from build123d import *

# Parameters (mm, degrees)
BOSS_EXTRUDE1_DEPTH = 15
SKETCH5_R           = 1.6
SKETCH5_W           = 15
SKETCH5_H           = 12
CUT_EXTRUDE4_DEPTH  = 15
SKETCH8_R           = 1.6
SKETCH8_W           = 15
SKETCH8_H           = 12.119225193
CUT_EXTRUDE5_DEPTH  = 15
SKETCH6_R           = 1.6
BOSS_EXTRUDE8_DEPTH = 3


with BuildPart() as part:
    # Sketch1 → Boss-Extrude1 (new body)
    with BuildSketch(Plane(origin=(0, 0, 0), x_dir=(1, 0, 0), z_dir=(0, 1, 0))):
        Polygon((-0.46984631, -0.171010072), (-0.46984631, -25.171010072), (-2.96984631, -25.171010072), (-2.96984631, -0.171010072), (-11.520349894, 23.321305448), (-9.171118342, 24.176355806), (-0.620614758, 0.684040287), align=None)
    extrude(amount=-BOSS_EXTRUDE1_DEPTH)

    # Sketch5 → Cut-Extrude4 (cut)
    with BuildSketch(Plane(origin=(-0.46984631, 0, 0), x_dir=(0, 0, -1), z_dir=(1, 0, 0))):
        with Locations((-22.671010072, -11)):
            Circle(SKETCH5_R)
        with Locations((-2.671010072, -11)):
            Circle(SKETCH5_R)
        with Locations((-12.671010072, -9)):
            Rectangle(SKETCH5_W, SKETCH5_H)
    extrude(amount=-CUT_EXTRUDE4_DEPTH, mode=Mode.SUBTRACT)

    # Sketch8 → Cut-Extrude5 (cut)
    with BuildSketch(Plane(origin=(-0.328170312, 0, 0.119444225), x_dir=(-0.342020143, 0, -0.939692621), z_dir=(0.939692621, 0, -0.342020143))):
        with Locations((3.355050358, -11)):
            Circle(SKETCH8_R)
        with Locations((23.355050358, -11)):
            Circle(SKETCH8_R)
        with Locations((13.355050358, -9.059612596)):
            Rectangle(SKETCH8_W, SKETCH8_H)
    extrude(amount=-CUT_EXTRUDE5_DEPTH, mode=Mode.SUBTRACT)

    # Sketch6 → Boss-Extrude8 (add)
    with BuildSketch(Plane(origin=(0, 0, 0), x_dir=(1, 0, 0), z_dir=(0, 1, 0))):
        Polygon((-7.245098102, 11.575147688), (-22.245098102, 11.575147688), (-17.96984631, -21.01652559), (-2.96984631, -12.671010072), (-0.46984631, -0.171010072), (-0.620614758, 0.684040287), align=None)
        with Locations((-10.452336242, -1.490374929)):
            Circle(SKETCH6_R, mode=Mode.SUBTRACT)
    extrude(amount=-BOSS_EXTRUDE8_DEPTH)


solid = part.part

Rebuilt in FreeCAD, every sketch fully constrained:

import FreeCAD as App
import Part
import Sketcher
Q = App.Units.Quantity


def add_polygon(sketch, points):
    """Adds a closed chain of lines whose ends are joined by coincident constraints."""
    first, n = sketch.GeometryCount, len(points)
    for a, b in zip(points, points[1:] + points[:1]):
        sketch.addGeometry(Part.LineSegment(App.Vector(*a, 0), App.Vector(*b, 0)), False)
    for i in range(n):
        sketch.addConstraint(Sketcher.Constraint("Coincident", first + i, 2, first + (i + 1) % n, 1))

doc = App.newDocument("Part")
body = doc.addObject("PartDesign::Body", "Body")

# Sketch on XZ plane
sketch1 = body.newObject("Sketcher::SketchObject", "Sketch")
sketch1.AttachmentSupport = (doc.getObject("XZ_Plane"), [""])
sketch1.MapMode = "FlatFace"
add_polygon(sketch1, [(-0.5, 25.2), (-0.5, 0.2), (-0.6, -0.7), (-9.2, -24.2), (-11.5, -23.3), (-3, 0.2), (-3, 25.2)])  # lines 0-6
sketch1.addConstraint(Sketcher.Constraint("Vertical", 0))
sketch1.addConstraint(Sketcher.Constraint("Vertical", 5))
sketch1.addConstraint(Sketcher.Constraint("Horizontal", 6))
sketch1.addConstraint(Sketcher.Constraint("Perpendicular", 2, 3))
sketch1.addConstraint(Sketcher.Constraint("Perpendicular", 3, 4))
sketch1.addConstraint(Sketcher.Constraint("Horizontal", 0, 2, 4, 2))
sketch1.addConstraint(Sketcher.Constraint("Equal", 2, 4))
sketch1.addConstraint(Sketcher.Constraint("DistanceY", 0, 2, 0, 1, 25.0))
sketch1.addConstraint(Sketcher.Constraint("Angle", 1, Q("-100 deg")))
sketch1.addConstraint(Sketcher.Constraint("Angle", 2, Q("-110 deg")))
sketch1.addConstraint(Sketcher.Constraint("Distance", 2, 25.0))
sketch1.addConstraint(Sketcher.Constraint("DistanceX", 6, 1, 6, 2, 2.5))
sketch1.addConstraint(Sketcher.Constraint("DistanceY", -1, 1, 0, 2, 0.17101))
sketch1.addConstraint(Sketcher.Constraint("DistanceX", 2, 2, -1, 1, 9.171118))
pad1 = body.newObject("PartDesign::Pad", "Pad")
pad1.Profile = sketch1
pad1.Length = 15

# Sketch on YZ plane
sketch2 = body.newObject("Sketcher::SketchObject", "Sketch001")
sketch2.AttachmentSupport = (doc.getObject("YZ_Plane"), [""])
sketch2.MapMode = "FlatFace"
sketch2.AttachmentOffset = App.Placement(App.Vector(0, 0, -0.469846), App.Rotation())
sketch2.addGeometry(Part.Circle(App.Vector(-11, 22.7, 0), App.Vector(0, 0, 1), 1.6), False)  # 0
sketch2.addGeometry(Part.Circle(App.Vector(-11, 2.7, 0), App.Vector(0, 0, 1), 1.6), False)  # 1
add_polygon(sketch2, [(-3, 20.2), (-15, 20.2), (-15, 5.2), (-3, 5.2)])  # lines 2-5
sketch2.addConstraint(Sketcher.Constraint("Horizontal", 2))
sketch2.addConstraint(Sketcher.Constraint("Vertical", 3))
sketch2.addConstraint(Sketcher.Constraint("Horizontal", 4))
sketch2.addConstraint(Sketcher.Constraint("Vertical", 5))
sketch2.addConstraint(Sketcher.Constraint("Equal", 0, 1))
sketch2.addConstraint(Sketcher.Constraint("Vertical", 0, 3, 1, 3))
sketch2.addConstraint(Sketcher.Constraint("Diameter", 0, 3.2))
sketch2.addConstraint(Sketcher.Constraint("DistanceX", 2, 2, 2, 1, 12.0))
sketch2.addConstraint(Sketcher.Constraint("DistanceY", 3, 2, 3, 1, 15.0))
sketch2.addConstraint(Sketcher.Constraint("DistanceX", 0, 3, -1, 1, 11.0))
sketch2.addConstraint(Sketcher.Constraint("DistanceX", 2, 2, -1, 1, 15.0))
sketch2.addConstraint(Sketcher.Constraint("DistanceY", 1, 3, 0, 3, 20.0))
sketch2.addConstraint(Sketcher.Constraint("DistanceY", 2, 2, 0, 3, 2.5))
sketch2.addConstraint(Sketcher.Constraint("DistanceY", -1, 1, 0, 3, 22.67101))
pocket1 = body.newObject("PartDesign::Pocket", "Pocket")
pocket1.Profile = sketch2
pocket1.Length = 15

# Sketch on an angled plane
sketch3 = body.newObject("Sketcher::SketchObject", "Sketch002")
sketch3.Placement = App.Placement(App.Vector(-0.32817, 0, 0.119444), App.Rotation(App.Vector(-0.342020143, 0, -0.939692621), App.Vector(0, 1, 0), App.Vector(0.939692621, 0, -0.342020143), "ZXY"))
sketch3.addGeometry(Part.Circle(App.Vector(3.4, -11, 0), App.Vector(0, 0, 1), 1.6), False)  # 0
sketch3.addGeometry(Part.Circle(App.Vector(23.4, -11, 0), App.Vector(0, 0, 1), 1.6), False)  # 1
add_polygon(sketch3, [(5.9, -3), (5.9, -15.1), (20.9, -15.1), (20.9, -3)])  # lines 2-5
sketch3.addConstraint(Sketcher.Constraint("Vertical", 2))
sketch3.addConstraint(Sketcher.Constraint("Horizontal", 3))
sketch3.addConstraint(Sketcher.Constraint("Vertical", 4))
sketch3.addConstraint(Sketcher.Constraint("Horizontal", 5))
sketch3.addConstraint(Sketcher.Constraint("Equal", 0, 1))
sketch3.addConstraint(Sketcher.Constraint("Horizontal", 0, 3, 1, 3))
sketch3.addConstraint(Sketcher.Constraint("Diameter", 0, 3.2))
sketch3.addConstraint(Sketcher.Constraint("DistanceX", 3, 1, 3, 2, 15.0))
sketch3.addConstraint(Sketcher.Constraint("DistanceY", 0, 3, -1, 1, 11.0))
sketch3.addConstraint(Sketcher.Constraint("DistanceY", 4, 2, -1, 1, 3.0))
sketch3.addConstraint(Sketcher.Constraint("DistanceX", 0, 3, 1, 3, 20.0))
sketch3.addConstraint(Sketcher.Constraint("DistanceX", 0, 3, 2, 2, 2.5))
sketch3.addConstraint(Sketcher.Constraint("DistanceY", 2, 2, 2, 1, 12.119225))
sketch3.addConstraint(Sketcher.Constraint("DistanceX", -1, 1, 0, 3, 3.35505))
pocket2 = body.newObject("PartDesign::Pocket", "Pocket001")
pocket2.Profile = sketch3
pocket2.Length = 15

# Sketch on XZ plane
sketch4 = body.newObject("Sketcher::SketchObject", "Sketch003")
sketch4.AttachmentSupport = (doc.getObject("XZ_Plane"), [""])
sketch4.MapMode = "FlatFace"
add_polygon(sketch4, [(-7.2, -11.6), (-22.2, -11.6), (-18, 21), (-3, 12.7), (-0.5, 0.2), (-0.6, -0.7)])  # lines 0-5
sketch4.addGeometry(Part.Circle(App.Vector(-10.5, 1.5, 0), App.Vector(0, 0, 1), 1.6), False)  # 6
sketch4.addConstraint(Sketcher.Constraint("Horizontal", 0))
sketch4.addConstraint(Sketcher.Constraint("Equal", 3, 5))
sketch4.addConstraint(Sketcher.Constraint("Diameter", 6, 3.2))
sketch4.addConstraint(Sketcher.Constraint("DistanceX", 0, 2, 0, 1, 15.0))
sketch4.addConstraint(Sketcher.Constraint("Angle", 4, Q("-100 deg")))
sketch4.addConstraint(Sketcher.Constraint("DistanceX", 1, 2, 2, 2, 15.0))
sketch4.addConstraint(Sketcher.Constraint("DistanceX", 2, 2, 3, 2, 2.5))
sketch4.addConstraint(Sketcher.Constraint("DistanceY", 3, 2, 2, 2, 12.5))
sketch4.addConstraint(Sketcher.Constraint("DistanceX", 0, 2, -1, 1, 22.245098))
sketch4.addConstraint(Sketcher.Constraint("Distance", 4, 0.868241))
sketch4.addConstraint(Sketcher.Constraint("DistanceY", -1, 1, 2, 2, 12.67101))
sketch4.addConstraint(Sketcher.Constraint("DistanceX", 0, 2, 6, 3, 11.792762))
sketch4.addConstraint(Sketcher.Constraint("DistanceX", 1, 2, 6, 3, 7.51751))
sketch4.addConstraint(Sketcher.Constraint("DistanceY", 6, 3, 1, 2, 19.526151))
sketch4.addConstraint(Sketcher.Constraint("Distance", 1, 32.870883))
pad2 = body.newObject("PartDesign::Pad", "Pad001")
pad2.Profile = sketch4
pad2.Length = 3

doc.recompute()
